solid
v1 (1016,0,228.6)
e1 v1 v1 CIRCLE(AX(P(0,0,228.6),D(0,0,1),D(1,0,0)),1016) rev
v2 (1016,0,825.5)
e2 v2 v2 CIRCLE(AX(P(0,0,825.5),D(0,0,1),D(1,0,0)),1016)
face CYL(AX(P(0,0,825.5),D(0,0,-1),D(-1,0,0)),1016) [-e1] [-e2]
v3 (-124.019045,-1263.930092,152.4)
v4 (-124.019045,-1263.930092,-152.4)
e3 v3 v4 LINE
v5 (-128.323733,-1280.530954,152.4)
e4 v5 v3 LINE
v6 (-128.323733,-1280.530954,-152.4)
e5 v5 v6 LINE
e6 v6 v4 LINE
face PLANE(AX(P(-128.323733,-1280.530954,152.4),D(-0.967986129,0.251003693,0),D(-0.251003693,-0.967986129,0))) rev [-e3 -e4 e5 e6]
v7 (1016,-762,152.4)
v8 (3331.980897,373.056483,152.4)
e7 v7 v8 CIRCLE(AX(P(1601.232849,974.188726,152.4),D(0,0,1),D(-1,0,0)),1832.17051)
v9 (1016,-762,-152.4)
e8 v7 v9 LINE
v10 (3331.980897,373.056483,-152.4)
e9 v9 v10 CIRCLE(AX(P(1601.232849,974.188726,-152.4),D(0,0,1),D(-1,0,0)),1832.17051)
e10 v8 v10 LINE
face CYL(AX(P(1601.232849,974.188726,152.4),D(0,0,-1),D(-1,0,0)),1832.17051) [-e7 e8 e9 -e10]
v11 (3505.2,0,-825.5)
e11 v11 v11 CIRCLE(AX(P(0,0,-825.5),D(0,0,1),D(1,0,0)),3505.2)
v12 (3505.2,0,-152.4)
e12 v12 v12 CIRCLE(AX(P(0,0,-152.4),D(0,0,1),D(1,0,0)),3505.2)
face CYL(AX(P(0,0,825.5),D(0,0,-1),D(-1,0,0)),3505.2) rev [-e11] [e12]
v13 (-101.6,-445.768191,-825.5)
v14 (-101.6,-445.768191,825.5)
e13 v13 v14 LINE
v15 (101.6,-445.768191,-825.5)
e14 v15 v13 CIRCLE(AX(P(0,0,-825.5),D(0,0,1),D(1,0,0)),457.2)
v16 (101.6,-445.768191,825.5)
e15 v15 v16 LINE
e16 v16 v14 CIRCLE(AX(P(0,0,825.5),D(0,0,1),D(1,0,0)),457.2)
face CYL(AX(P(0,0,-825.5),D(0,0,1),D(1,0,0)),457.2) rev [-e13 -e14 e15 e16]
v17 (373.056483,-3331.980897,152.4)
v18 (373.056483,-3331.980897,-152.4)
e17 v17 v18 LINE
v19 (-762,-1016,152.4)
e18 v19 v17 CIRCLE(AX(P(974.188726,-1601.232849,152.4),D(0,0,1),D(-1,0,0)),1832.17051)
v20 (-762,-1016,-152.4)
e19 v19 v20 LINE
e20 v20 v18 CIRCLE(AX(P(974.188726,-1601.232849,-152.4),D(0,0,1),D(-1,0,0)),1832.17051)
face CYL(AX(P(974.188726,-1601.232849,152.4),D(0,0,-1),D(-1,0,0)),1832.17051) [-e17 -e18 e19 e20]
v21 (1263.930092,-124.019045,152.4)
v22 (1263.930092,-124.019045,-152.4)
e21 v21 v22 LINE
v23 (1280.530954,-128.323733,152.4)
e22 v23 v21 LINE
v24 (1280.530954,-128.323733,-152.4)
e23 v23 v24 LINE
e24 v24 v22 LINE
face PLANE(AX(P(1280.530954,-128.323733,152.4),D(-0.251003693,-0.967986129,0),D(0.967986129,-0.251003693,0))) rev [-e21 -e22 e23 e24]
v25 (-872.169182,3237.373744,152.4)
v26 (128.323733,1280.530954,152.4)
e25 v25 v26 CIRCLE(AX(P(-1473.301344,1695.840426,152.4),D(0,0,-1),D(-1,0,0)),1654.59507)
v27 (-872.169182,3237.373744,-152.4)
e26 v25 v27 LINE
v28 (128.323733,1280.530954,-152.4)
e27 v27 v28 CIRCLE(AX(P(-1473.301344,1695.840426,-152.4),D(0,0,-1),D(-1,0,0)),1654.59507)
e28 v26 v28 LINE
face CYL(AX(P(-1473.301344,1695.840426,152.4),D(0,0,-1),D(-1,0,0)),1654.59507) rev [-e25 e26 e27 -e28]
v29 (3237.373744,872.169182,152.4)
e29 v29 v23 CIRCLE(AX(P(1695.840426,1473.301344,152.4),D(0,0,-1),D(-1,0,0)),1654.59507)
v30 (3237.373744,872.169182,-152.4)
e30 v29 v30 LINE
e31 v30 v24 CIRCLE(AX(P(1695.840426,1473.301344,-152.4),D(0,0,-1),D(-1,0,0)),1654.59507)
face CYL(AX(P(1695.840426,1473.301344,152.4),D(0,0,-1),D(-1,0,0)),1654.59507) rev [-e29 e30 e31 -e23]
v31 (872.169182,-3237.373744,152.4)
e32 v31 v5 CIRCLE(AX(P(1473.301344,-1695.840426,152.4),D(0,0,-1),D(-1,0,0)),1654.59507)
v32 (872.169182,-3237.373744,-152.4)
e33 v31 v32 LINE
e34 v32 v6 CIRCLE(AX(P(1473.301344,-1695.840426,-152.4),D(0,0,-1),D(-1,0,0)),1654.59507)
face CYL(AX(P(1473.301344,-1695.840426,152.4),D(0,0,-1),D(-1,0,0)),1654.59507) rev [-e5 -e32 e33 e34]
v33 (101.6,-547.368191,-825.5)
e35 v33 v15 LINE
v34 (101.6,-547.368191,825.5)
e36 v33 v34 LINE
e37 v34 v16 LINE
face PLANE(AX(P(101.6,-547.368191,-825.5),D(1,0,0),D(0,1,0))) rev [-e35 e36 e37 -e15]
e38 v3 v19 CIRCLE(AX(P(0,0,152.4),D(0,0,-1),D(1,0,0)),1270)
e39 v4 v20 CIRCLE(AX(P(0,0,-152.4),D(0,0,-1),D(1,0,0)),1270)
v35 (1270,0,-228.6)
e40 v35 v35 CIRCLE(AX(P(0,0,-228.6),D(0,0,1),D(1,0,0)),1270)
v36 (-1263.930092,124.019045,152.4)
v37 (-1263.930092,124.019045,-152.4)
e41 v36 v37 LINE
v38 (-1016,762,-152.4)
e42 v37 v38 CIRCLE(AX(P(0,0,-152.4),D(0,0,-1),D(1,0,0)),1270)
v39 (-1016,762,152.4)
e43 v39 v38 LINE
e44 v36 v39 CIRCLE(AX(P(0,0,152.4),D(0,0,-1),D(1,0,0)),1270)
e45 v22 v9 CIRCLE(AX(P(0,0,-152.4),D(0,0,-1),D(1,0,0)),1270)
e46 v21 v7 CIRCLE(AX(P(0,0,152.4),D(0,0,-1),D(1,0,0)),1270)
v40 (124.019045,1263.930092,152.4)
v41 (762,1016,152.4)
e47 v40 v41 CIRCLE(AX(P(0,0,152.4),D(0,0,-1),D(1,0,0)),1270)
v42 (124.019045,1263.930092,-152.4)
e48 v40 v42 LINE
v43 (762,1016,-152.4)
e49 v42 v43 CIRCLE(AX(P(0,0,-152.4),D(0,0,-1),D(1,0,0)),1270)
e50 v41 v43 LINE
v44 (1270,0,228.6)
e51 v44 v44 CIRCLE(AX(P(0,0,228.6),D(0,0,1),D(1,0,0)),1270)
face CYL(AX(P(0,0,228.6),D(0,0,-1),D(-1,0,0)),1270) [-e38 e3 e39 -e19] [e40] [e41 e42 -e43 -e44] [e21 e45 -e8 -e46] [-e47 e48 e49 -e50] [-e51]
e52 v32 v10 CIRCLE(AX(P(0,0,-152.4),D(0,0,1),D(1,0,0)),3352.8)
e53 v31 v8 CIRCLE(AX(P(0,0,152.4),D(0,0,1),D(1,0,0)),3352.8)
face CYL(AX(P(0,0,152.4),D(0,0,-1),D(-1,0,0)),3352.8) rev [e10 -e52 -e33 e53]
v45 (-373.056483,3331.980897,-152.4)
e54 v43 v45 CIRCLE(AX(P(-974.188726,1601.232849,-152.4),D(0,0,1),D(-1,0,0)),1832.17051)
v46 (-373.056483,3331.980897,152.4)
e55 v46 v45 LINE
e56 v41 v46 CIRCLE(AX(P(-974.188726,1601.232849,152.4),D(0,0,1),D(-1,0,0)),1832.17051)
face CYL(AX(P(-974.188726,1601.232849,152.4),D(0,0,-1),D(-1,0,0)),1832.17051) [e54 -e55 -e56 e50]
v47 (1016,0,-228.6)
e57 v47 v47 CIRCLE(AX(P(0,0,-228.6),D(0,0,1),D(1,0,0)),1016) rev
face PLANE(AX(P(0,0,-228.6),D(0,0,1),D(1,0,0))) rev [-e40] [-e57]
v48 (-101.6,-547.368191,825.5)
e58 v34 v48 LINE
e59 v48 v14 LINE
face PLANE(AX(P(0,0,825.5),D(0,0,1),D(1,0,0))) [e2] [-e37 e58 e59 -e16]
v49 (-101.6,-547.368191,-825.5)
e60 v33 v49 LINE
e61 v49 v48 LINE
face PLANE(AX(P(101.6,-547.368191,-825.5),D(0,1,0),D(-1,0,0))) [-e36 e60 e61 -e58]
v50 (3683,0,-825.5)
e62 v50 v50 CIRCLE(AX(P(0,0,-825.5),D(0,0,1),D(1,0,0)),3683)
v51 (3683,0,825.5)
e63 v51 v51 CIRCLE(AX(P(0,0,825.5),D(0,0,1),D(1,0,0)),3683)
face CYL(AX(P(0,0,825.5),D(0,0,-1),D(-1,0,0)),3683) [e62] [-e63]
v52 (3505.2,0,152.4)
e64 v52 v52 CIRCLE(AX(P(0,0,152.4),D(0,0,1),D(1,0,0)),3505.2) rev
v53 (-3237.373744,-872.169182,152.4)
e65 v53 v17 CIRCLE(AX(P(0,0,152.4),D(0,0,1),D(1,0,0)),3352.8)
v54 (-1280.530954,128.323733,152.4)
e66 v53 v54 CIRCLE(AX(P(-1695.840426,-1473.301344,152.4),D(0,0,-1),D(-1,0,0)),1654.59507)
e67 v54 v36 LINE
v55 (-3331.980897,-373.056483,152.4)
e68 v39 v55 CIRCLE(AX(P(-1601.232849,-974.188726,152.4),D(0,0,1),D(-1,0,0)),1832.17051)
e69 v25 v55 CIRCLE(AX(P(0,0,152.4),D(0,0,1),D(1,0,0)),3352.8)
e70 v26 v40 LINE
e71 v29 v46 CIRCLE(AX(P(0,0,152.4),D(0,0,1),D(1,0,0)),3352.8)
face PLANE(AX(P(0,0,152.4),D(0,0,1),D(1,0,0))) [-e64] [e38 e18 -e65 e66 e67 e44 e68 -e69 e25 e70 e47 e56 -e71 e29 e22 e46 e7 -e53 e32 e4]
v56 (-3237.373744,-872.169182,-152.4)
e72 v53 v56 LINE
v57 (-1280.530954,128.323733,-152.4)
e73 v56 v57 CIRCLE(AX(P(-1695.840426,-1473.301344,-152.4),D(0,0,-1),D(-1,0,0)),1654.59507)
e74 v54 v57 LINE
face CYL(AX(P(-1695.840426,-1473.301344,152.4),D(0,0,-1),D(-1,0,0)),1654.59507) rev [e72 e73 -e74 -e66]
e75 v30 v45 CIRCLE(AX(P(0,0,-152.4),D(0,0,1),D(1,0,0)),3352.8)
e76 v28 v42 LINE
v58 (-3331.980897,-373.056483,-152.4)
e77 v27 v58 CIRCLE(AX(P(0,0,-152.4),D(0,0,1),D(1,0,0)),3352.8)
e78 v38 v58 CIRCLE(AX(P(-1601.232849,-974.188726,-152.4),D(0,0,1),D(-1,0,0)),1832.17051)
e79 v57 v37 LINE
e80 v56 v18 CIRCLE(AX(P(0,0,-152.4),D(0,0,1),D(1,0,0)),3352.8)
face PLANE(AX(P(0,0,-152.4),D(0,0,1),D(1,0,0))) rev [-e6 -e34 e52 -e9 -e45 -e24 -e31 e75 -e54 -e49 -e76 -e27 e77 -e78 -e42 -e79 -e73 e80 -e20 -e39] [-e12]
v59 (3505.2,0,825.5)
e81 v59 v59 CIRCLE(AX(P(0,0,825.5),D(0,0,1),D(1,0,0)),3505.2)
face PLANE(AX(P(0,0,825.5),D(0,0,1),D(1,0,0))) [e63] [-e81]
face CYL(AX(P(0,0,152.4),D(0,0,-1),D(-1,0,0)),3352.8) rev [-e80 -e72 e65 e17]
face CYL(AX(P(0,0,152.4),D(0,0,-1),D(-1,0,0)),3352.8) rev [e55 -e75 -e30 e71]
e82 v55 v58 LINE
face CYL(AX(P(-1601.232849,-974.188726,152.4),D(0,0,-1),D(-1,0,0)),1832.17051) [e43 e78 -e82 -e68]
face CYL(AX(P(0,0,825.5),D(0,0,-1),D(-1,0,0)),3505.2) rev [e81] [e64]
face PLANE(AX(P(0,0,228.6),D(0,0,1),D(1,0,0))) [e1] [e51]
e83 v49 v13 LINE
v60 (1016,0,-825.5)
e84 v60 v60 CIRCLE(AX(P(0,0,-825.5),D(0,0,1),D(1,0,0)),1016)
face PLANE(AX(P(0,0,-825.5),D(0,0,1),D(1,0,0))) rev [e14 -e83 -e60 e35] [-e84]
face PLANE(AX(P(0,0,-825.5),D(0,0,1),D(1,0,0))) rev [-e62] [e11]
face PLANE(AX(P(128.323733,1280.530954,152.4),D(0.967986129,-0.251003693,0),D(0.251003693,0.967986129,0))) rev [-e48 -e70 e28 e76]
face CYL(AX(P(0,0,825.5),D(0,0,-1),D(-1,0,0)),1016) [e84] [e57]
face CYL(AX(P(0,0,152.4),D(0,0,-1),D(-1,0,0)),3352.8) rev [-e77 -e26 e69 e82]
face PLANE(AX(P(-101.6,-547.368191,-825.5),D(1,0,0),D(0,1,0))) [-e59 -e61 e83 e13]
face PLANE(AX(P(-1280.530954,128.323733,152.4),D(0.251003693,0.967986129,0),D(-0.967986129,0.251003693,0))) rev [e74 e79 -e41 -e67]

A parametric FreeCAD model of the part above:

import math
import FreeCAD as App
import Part
import Sketcher
Q = App.Units.Quantity

doc = App.newDocument("Part")
params = doc.addObject("Spreadsheet::Sheet", "Params")
for row, (alias, value) in enumerate([
    ("sketch1_diameter", "100 in"),
    ("pad1_length", "18 in"),
    ("sketch2_diameter", "80 in"),
    ("pad2_length", "65 in"),
    ("sketch3_radius", "18 in"),
    ("sketch3_width", "8 in"),
    ("sketch3_height", "4 in"),
    ("pocket1_length", "65 in"),
    ("sketch4_diameter", "276 in"),
    ("sketch4_diameter2", "264 in"),
    ("pad3_length", "12 in"),
    ("sketch5_diameter", "290 in"),
    ("sketch5_diameter2", "276 in"),
    ("pad4_length", "65 in"),
    ("sketch6_radius", "50 in"),
    ("sketch6_radius2", "132 in"),
    ("sketch6_radius3", "50 in"),
    ("sketch6_radius4", "132 in"),
    ("sketch6_radius5", "50 in"),
    ("pad5_length", "12 in"),
], start=1):
    params.set(f"A{row}", alias)
    params.set(f"B{row}", "=" + value)
    params.setAlias(f"B{row}", alias)

body = doc.addObject("PartDesign::Body", "Body")

# Sketch on XY plane
sketch1 = doc.addObject("Sketcher::SketchObject", "Sketch")
body.addObject(sketch1)
sketch1.AttachmentSupport = (doc.XY_Plane, [""])
sketch1.MapMode = "FlatFace"
sketch1.addGeometry(Part.Circle(App.Vector(0, 0, 0), App.Vector(0, 0, 1), 1270), False)
sketch1.addConstraint([
    Sketcher.Constraint("Coincident", 0, 3, -1, 1),
    Sketcher.Constraint("Diameter", 0, Q("100 in")),
])
sketch1.setExpression("Constraints[1]", "Params.sketch1_diameter")
pad1 = doc.addObject("PartDesign::Pad", "Pad")
body.addObject(pad1)
pad1.Profile = sketch1
pad1.setExpression("Length", "Params.pad1_length")
pad1.Midplane = True

# Sketch on XY plane
sketch2 = doc.addObject("Sketcher::SketchObject", "Sketch001")
body.addObject(sketch2)
sketch2.AttachmentSupport = (doc.XY_Plane, [""])
sketch2.MapMode = "FlatFace"
sketch2.addGeometry(Part.Circle(App.Vector(0, 0, 0), App.Vector(0, 0, 1), 1016), False)
sketch2.addConstraint([
    Sketcher.Constraint("Coincident", 0, 3, -1, 1),
    Sketcher.Constraint("Diameter", 0, Q("80 in")),
])
sketch2.setExpression("Constraints[1]", "Params.sketch2_diameter")
pad2 = doc.addObject("PartDesign::Pad", "Pad001")
body.addObject(pad2)
pad2.Profile = sketch2
pad2.setExpression("Length", "Params.pad2_length")
pad2.Midplane = True

# Sketch on XY plane
sketch3 = doc.addObject("Sketcher::SketchObject", "Sketch002")
body.addObject(sketch3)
sketch3.AttachmentSupport = (doc.XY_Plane, [""])
sketch3.MapMode = "FlatFace"
sketch3.addGeometry([
    Part.LineSegment(App.Vector(-102, -547, 0), App.Vector(102, -547, 0)),
    Part.LineSegment(App.Vector(102, -547, 0), App.Vector(102, -446, 0)),
    Part.ArcOfCircle(Part.Circle(App.Vector(0, 0, 0), App.Vector(0, 0, 1), 457), math.radians(-77), math.radians(257)),
    Part.LineSegment(App.Vector(-102, -446, 0), App.Vector(-102, -547, 0)),
], False)
sketch3.addConstraint([
    Sketcher.Constraint("Coincident", 0, 2, 1, 1),
    Sketcher.Constraint("Coincident", 1, 2, 2, 1),
    Sketcher.Constraint("Coincident", 2, 2, 3, 1),
    Sketcher.Constraint("Coincident", 3, 2, 0, 1),
    Sketcher.Constraint("Horizontal", 0),
    Sketcher.Constraint("Vertical", 1),
    Sketcher.Constraint("Vertical", 3),
    Sketcher.Constraint("Coincident", 2, 3, -1, 1),
    Sketcher.Constraint("Equal", 1, 3),
    Sketcher.Constraint("Radius", 2, Q("18 in")),
    Sketcher.Constraint("DistanceX", 0, 1, 0, 2, Q("8 in")),
    Sketcher.Constraint("DistanceY", 1, 1, 1, 2, Q("4 in")),
])
sketch3.setExpression("Constraints[9]", "Params.sketch3_radius")
sketch3.setExpression("Constraints[10]", "Params.sketch3_width")
sketch3.setExpression("Constraints[11]", "Params.sketch3_height")
pocket1 = doc.addObject("PartDesign::Pocket", "Pocket")
body.addObject(pocket1)
pocket1.Profile = sketch3
pocket1.setExpression("Length", "Params.pocket1_length")
pocket1.Midplane = True
body2 = doc.addObject("PartDesign::Body", "Body001")

# Sketch on XY plane
sketch4 = doc.addObject("Sketcher::SketchObject", "Sketch003")
body2.addObject(sketch4)
sketch4.AttachmentSupport = (doc.getObject("XY_Plane001"), [""])
sketch4.MapMode = "FlatFace"
sketch4.addGeometry([
    Part.Circle(App.Vector(0, 0, 0), App.Vector(0, 0, 1), 3505),
    Part.Circle(App.Vector(0, 0, 0), App.Vector(0, 0, 1), 3353),
], False)
sketch4.addConstraint([
    Sketcher.Constraint("Coincident", 0, 3, -1, 1),
    Sketcher.Constraint("Coincident", 1, 3, -1, 1),
    Sketcher.Constraint("Diameter", 0, Q("276 in")),
    Sketcher.Constraint("Diameter", 1, Q("264 in")),
])
sketch4.setExpression("Constraints[2]", "Params.sketch4_diameter")
sketch4.setExpression("Constraints[3]", "Params.sketch4_diameter2")
pad3 = doc.addObject("PartDesign::Pad", "Pad002")
body2.addObject(pad3)
pad3.Profile = sketch4
pad3.setExpression("Length", "Params.pad3_length")
pad3.Midplane = True

# Sketch on XY plane
sketch5 = doc.addObject("Sketcher::SketchObject", "Sketch004")
body2.addObject(sketch5)
sketch5.AttachmentSupport = (doc.getObject("XY_Plane001"), [""])
sketch5.MapMode = "FlatFace"
sketch5.addGeometry([
    Part.Circle(App.Vector(0, 0, 0), App.Vector(0, 0, 1), 3683),
    Part.Circle(App.Vector(0, 0, 0), App.Vector(0, 0, 1), 3505),
], False)
sketch5.addConstraint([
    Sketcher.Constraint("Coincident", 0, 3, -1, 1),
    Sketcher.Constraint("Coincident", 1, 3, -1, 1),
    Sketcher.Constraint("Diameter", 0, Q("290 in")),
    Sketcher.Constraint("Diameter", 1, Q("276 in")),
])
sketch5.setExpression("Constraints[2]", "Params.sketch5_diameter")
sketch5.setExpression("Constraints[3]", "Params.sketch5_diameter2")
pad4 = doc.addObject("PartDesign::Pad", "Pad003")
body2.addObject(pad4)
pad4.Profile = sketch5
pad4.setExpression("Length", "Params.pad4_length")
pad4.Midplane = True
body.AllowCompound = True
doc.recompute()

boolean = doc.addObject("PartDesign::Boolean", "Boolean")
body.addObject(boolean)
boolean.Type = "Fuse"
boolean.addObjects([body2])

# Sketch on XY plane
sketch6 = doc.addObject("Sketcher::SketchObject", "Sketch005")
body.addObject(sketch6)
sketch6.AttachmentSupport = (doc.XY_Plane, [""])
sketch6.MapMode = "FlatFace"
sketch6.addGeometry([
    Part.LineSegment(App.Vector(128.323733, 1280.530954, 0), App.Vector(124.019045, 1263.930092, 0)),  # 0
    Part.ArcOfCircle(Part.Circle(App.Vector(0, 0, 0), App.Vector(0, 0, 1), 1270), math.radians(53.130102), math.radians(84.395976)),  # 1
    Part.ArcOfCircle(Part.Circle(App.Vector(-974.188726, 1601.232849, 0), App.Vector(0, 0, 1), 1832.17051), math.radians(-18.627884), math.radians(70.846602)),  # 2
    Part.ArcOfCircle(Part.Circle(App.Vector(0, 0, 0), App.Vector(0, 0, 1), 3352.8), math.radians(96.388366), math.radians(105.07787)),  # 3
    Part.ArcOfCircle(Part.Circle(App.Vector(-1473.301344, 1695.840426, 0), App.Vector(0, 0, 1), 1654.59507), math.radians(-14.536913), math.radians(68.69634)),  # 4
    Part.LineSegment(App.Vector(1280.530954, -128.323733, 0), App.Vector(1263.930092, -124.019045, 0)),  # 5
    Part.ArcOfCircle(Part.Circle(App.Vector(0, 0, 0), App.Vector(0, 0, 1), 1270), math.radians(-36.869898), math.radians(-5.604024)),  # 6
    Part.ArcOfCircle(Part.Circle(App.Vector(1601.232849, 974.188726, 0), App.Vector(0, 0, 1), 1832.17051), math.radians(-108.627884), math.radians(-19.153398)),  # 7
    Part.ArcOfCircle(Part.Circle(App.Vector(0, 0, 0), App.Vector(0, 0, 1), 3352.8), math.radians(6.388366), math.radians(15.07787)),  # 8
    Part.ArcOfCircle(Part.Circle(App.Vector(1695.840426, 1473.301344, 0), App.Vector(0, 0, 1), 1654.59507), math.radians(-104.536913), math.radians(-21.30366)),  # 9
    Part.LineSegment(App.Vector(-128.323733, -1280.530954, 0), App.Vector(-124.019045, -1263.930092, 0)),  # 10
    Part.ArcOfCircle(Part.Circle(App.Vector(0, 0, 0), App.Vector(0, 0, 1), 1270), math.radians(-126.869898), math.radians(-95.604024)),  # 11
    Part.ArcOfCircle(Part.Circle(App.Vector(974.188726, -1601.232849, 0), App.Vector(0, 0, 1), 1832.17051), math.radians(161.372116), math.radians(250.846602)),  # 12
    Part.ArcOfCircle(Part.Circle(App.Vector(0, 0, 0), App.Vector(0, 0, 1), 3352.8), math.radians(-83.611634), math.radians(-74.92213)),  # 13
    Part.ArcOfCircle(Part.Circle(App.Vector(1473.301344, -1695.840426, 0), App.Vector(0, 0, 1), 1654.59507), math.radians(165.463087), math.radians(248.69634)),  # 14
    Part.LineSegment(App.Vector(-1280.530954, 128.323733, 0), App.Vector(-1263.930092, 124.019045, 0)),  # 15
    Part.ArcOfCircle(Part.Circle(App.Vector(0, 0, 0), App.Vector(0, 0, 1), 1270), math.radians(143.130102), math.radians(174.395976)),  # 16
    Part.ArcOfCircle(Part.Circle(App.Vector(-1601.232849, -974.188726, 0), App.Vector(0, 0, 1), 1832.17051), math.radians(71.372116), math.radians(160.846602)),  # 17
    Part.ArcOfCircle(Part.Circle(App.Vector(0, 0, 0), App.Vector(0, 0, 1), 3352.8), math.radians(-173.611634), math.radians(-164.92213)),  # 18
    Part.ArcOfCircle(Part.Circle(App.Vector(-1695.840426, -1473.301344, 0), App.Vector(0, 0, 1), 1654.59507), math.radians(75.463087), math.radians(158.69634)),  # 19
], False)
sketch6.addConstraint([
    Sketcher.Constraint("Coincident", 0, 2, 1, 2),
    Sketcher.Constraint("Coincident", 1, 1, 2, 1),
    Sketcher.Constraint("Coincident", 2, 2, 3, 1),
    Sketcher.Constraint("Coincident", 3, 2, 4, 2),
    Sketcher.Constraint("Coincident", 4, 1, 0, 1),
    Sketcher.Constraint("Coincident", 5, 2, 6, 2),
    Sketcher.Constraint("Coincident", 6, 1, 7, 1),
    Sketcher.Constraint("Coincident", 7, 2, 8, 1),
    Sketcher.Constraint("Coincident", 8, 2, 9, 2),
    Sketcher.Constraint("Coincident", 9, 1, 5, 1),
    Sketcher.Constraint("Coincident", 10, 2, 11, 2),
    Sketcher.Constraint("Coincident", 11, 1, 12, 1),
    Sketcher.Constraint("Coincident", 12, 2, 13, 1),
    Sketcher.Constraint("Coincident", 13, 2, 14, 2),
    Sketcher.Constraint("Coincident", 14, 1, 10, 1),
    Sketcher.Constraint("Coincident", 15, 2, 16, 2),
    Sketcher.Constraint("Coincident", 16, 1, 17, 1),
    Sketcher.Constraint("Coincident", 17, 2, 18, 1),
    Sketcher.Constraint("Coincident", 18, 2, 19, 2),
    Sketcher.Constraint("Coincident", 19, 1, 15, 1),
    Sketcher.Constraint("Coincident", 1, 3, -1, 1),
    Sketcher.Constraint("Coincident", 3, 3, -1, 1),
    Sketcher.Constraint("Coincident", 6, 3, -1, 1),
    Sketcher.Constraint("Coincident", 8, 3, -1, 1),
    Sketcher.Constraint("Coincident", 11, 3, -1, 1),
    Sketcher.Constraint("Coincident", 13, 3, -1, 1),
    Sketcher.Constraint("Coincident", 16, 3, -1, 1),
    Sketcher.Constraint("Coincident", 18, 3, -1, 1),
    Sketcher.Constraint("Radius", 1, Q("50 in")),
    Sketcher.Constraint("Radius", 3, Q("132 in")),
    Sketcher.Constraint("Radius", 6, Q("50 in")),
    Sketcher.Constraint("Radius", 8, Q("132 in")),
    Sketcher.Constraint("Radius", 11, Q("50 in")),
    Sketcher.Constraint("Radius", 13, Q("132 in")),
    Sketcher.Constraint("Radius", 16, Q("50 in")),
    Sketcher.Constraint("Radius", 18, Q("132 in")),
    Sketcher.Constraint("Radius", 2, 1832.17051),
    Sketcher.Constraint("Radius", 4, 1654.59507),
    Sketcher.Constraint("Radius", 7, 1832.17051),
    Sketcher.Constraint("Radius", 9, 1654.59507),
    Sketcher.Constraint("Radius", 12, 1832.17051),
    Sketcher.Constraint("Radius", 14, 1654.59507),
    Sketcher.Constraint("Radius", 17, 1832.17051),
    Sketcher.Constraint("Radius", 19, 1654.59507),
    Sketcher.Constraint("DistanceY", 7, 3, 4, 3, 721.651701),
    Sketcher.Constraint("DistanceY", -1, 1, 2, 3, 1601.232849),
    Sketcher.Constraint("DistanceX", -1, 1, 7, 3, 1601.232849),
    Sketcher.Constraint("DistanceY", 12, 3, -1, 1, 1601.232849),
    Sketcher.Constraint("DistanceX", 17, 3, -1, 1, 1601.232849),
    Sketcher.Constraint("DistanceY", -1, 1, 0, 2, 1263.930092),
    Sketcher.Constraint("DistanceX", -1, 1, 5, 2, 1263.930092),
    Sketcher.Constraint("DistanceY", 10, 2, -1, 1, 1263.930092),
    Sketcher.Constraint("DistanceX", 15, 2, -1, 1, 1263.930092),
    Sketcher.Constraint("DistanceX", 4, 3, 2, 3, 499.112619),
    Sketcher.Constraint("DistanceY", 7, 3, 9, 3, 499.112619),
    Sketcher.Constraint("DistanceX", 12, 3, 14, 3, 499.112619),
    Sketcher.Constraint("DistanceY", 19, 3, 17, 3, 499.112619),
    Sketcher.Constraint("DistanceX", 2, 3, 0, 2, 1098.207771),
    Sketcher.Constraint("DistanceY", 5, 2, 7, 3, 1098.207771),
    Sketcher.Constraint("DistanceX", 10, 2, 12, 3, 1098.207771),
    Sketcher.Constraint("DistanceY", 17, 3, 15, 2, 1098.207771),
    Sketcher.Constraint("Distance", 0, 17.149897),
    Sketcher.Constraint("Distance", 5, 17.149897),
    Sketcher.Constraint("Distance", 10, 17.149897),
    Sketcher.Constraint("Distance", 15, 17.149897),
    Sketcher.Constraint("DistanceX", -1, 1, 9, 3, 1695.840426),
    Sketcher.Constraint("DistanceY", 14, 3, -1, 1, 1695.840426),
    Sketcher.Constraint("DistanceX", 19, 3, -1, 1, 1695.840426),
])
sketch6.setExpression("Constraints[28]", "Params.sketch6_radius")
sketch6.setExpression("Constraints[29]", "Params.sketch6_radius2")
sketch6.setExpression("Constraints[30]", "Params.sketch6_radius3")
sketch6.setExpression("Constraints[31]", "Params.sketch6_radius4")
sketch6.setExpression("Constraints[32]", "Params.sketch6_radius5")
pad5 = doc.addObject("PartDesign::Pad", "Pad004")
body.addObject(pad5)
pad5.Profile = sketch6
pad5.setExpression("Length", "Params.pad5_length")
pad5.Midplane = True

doc.recompute()
